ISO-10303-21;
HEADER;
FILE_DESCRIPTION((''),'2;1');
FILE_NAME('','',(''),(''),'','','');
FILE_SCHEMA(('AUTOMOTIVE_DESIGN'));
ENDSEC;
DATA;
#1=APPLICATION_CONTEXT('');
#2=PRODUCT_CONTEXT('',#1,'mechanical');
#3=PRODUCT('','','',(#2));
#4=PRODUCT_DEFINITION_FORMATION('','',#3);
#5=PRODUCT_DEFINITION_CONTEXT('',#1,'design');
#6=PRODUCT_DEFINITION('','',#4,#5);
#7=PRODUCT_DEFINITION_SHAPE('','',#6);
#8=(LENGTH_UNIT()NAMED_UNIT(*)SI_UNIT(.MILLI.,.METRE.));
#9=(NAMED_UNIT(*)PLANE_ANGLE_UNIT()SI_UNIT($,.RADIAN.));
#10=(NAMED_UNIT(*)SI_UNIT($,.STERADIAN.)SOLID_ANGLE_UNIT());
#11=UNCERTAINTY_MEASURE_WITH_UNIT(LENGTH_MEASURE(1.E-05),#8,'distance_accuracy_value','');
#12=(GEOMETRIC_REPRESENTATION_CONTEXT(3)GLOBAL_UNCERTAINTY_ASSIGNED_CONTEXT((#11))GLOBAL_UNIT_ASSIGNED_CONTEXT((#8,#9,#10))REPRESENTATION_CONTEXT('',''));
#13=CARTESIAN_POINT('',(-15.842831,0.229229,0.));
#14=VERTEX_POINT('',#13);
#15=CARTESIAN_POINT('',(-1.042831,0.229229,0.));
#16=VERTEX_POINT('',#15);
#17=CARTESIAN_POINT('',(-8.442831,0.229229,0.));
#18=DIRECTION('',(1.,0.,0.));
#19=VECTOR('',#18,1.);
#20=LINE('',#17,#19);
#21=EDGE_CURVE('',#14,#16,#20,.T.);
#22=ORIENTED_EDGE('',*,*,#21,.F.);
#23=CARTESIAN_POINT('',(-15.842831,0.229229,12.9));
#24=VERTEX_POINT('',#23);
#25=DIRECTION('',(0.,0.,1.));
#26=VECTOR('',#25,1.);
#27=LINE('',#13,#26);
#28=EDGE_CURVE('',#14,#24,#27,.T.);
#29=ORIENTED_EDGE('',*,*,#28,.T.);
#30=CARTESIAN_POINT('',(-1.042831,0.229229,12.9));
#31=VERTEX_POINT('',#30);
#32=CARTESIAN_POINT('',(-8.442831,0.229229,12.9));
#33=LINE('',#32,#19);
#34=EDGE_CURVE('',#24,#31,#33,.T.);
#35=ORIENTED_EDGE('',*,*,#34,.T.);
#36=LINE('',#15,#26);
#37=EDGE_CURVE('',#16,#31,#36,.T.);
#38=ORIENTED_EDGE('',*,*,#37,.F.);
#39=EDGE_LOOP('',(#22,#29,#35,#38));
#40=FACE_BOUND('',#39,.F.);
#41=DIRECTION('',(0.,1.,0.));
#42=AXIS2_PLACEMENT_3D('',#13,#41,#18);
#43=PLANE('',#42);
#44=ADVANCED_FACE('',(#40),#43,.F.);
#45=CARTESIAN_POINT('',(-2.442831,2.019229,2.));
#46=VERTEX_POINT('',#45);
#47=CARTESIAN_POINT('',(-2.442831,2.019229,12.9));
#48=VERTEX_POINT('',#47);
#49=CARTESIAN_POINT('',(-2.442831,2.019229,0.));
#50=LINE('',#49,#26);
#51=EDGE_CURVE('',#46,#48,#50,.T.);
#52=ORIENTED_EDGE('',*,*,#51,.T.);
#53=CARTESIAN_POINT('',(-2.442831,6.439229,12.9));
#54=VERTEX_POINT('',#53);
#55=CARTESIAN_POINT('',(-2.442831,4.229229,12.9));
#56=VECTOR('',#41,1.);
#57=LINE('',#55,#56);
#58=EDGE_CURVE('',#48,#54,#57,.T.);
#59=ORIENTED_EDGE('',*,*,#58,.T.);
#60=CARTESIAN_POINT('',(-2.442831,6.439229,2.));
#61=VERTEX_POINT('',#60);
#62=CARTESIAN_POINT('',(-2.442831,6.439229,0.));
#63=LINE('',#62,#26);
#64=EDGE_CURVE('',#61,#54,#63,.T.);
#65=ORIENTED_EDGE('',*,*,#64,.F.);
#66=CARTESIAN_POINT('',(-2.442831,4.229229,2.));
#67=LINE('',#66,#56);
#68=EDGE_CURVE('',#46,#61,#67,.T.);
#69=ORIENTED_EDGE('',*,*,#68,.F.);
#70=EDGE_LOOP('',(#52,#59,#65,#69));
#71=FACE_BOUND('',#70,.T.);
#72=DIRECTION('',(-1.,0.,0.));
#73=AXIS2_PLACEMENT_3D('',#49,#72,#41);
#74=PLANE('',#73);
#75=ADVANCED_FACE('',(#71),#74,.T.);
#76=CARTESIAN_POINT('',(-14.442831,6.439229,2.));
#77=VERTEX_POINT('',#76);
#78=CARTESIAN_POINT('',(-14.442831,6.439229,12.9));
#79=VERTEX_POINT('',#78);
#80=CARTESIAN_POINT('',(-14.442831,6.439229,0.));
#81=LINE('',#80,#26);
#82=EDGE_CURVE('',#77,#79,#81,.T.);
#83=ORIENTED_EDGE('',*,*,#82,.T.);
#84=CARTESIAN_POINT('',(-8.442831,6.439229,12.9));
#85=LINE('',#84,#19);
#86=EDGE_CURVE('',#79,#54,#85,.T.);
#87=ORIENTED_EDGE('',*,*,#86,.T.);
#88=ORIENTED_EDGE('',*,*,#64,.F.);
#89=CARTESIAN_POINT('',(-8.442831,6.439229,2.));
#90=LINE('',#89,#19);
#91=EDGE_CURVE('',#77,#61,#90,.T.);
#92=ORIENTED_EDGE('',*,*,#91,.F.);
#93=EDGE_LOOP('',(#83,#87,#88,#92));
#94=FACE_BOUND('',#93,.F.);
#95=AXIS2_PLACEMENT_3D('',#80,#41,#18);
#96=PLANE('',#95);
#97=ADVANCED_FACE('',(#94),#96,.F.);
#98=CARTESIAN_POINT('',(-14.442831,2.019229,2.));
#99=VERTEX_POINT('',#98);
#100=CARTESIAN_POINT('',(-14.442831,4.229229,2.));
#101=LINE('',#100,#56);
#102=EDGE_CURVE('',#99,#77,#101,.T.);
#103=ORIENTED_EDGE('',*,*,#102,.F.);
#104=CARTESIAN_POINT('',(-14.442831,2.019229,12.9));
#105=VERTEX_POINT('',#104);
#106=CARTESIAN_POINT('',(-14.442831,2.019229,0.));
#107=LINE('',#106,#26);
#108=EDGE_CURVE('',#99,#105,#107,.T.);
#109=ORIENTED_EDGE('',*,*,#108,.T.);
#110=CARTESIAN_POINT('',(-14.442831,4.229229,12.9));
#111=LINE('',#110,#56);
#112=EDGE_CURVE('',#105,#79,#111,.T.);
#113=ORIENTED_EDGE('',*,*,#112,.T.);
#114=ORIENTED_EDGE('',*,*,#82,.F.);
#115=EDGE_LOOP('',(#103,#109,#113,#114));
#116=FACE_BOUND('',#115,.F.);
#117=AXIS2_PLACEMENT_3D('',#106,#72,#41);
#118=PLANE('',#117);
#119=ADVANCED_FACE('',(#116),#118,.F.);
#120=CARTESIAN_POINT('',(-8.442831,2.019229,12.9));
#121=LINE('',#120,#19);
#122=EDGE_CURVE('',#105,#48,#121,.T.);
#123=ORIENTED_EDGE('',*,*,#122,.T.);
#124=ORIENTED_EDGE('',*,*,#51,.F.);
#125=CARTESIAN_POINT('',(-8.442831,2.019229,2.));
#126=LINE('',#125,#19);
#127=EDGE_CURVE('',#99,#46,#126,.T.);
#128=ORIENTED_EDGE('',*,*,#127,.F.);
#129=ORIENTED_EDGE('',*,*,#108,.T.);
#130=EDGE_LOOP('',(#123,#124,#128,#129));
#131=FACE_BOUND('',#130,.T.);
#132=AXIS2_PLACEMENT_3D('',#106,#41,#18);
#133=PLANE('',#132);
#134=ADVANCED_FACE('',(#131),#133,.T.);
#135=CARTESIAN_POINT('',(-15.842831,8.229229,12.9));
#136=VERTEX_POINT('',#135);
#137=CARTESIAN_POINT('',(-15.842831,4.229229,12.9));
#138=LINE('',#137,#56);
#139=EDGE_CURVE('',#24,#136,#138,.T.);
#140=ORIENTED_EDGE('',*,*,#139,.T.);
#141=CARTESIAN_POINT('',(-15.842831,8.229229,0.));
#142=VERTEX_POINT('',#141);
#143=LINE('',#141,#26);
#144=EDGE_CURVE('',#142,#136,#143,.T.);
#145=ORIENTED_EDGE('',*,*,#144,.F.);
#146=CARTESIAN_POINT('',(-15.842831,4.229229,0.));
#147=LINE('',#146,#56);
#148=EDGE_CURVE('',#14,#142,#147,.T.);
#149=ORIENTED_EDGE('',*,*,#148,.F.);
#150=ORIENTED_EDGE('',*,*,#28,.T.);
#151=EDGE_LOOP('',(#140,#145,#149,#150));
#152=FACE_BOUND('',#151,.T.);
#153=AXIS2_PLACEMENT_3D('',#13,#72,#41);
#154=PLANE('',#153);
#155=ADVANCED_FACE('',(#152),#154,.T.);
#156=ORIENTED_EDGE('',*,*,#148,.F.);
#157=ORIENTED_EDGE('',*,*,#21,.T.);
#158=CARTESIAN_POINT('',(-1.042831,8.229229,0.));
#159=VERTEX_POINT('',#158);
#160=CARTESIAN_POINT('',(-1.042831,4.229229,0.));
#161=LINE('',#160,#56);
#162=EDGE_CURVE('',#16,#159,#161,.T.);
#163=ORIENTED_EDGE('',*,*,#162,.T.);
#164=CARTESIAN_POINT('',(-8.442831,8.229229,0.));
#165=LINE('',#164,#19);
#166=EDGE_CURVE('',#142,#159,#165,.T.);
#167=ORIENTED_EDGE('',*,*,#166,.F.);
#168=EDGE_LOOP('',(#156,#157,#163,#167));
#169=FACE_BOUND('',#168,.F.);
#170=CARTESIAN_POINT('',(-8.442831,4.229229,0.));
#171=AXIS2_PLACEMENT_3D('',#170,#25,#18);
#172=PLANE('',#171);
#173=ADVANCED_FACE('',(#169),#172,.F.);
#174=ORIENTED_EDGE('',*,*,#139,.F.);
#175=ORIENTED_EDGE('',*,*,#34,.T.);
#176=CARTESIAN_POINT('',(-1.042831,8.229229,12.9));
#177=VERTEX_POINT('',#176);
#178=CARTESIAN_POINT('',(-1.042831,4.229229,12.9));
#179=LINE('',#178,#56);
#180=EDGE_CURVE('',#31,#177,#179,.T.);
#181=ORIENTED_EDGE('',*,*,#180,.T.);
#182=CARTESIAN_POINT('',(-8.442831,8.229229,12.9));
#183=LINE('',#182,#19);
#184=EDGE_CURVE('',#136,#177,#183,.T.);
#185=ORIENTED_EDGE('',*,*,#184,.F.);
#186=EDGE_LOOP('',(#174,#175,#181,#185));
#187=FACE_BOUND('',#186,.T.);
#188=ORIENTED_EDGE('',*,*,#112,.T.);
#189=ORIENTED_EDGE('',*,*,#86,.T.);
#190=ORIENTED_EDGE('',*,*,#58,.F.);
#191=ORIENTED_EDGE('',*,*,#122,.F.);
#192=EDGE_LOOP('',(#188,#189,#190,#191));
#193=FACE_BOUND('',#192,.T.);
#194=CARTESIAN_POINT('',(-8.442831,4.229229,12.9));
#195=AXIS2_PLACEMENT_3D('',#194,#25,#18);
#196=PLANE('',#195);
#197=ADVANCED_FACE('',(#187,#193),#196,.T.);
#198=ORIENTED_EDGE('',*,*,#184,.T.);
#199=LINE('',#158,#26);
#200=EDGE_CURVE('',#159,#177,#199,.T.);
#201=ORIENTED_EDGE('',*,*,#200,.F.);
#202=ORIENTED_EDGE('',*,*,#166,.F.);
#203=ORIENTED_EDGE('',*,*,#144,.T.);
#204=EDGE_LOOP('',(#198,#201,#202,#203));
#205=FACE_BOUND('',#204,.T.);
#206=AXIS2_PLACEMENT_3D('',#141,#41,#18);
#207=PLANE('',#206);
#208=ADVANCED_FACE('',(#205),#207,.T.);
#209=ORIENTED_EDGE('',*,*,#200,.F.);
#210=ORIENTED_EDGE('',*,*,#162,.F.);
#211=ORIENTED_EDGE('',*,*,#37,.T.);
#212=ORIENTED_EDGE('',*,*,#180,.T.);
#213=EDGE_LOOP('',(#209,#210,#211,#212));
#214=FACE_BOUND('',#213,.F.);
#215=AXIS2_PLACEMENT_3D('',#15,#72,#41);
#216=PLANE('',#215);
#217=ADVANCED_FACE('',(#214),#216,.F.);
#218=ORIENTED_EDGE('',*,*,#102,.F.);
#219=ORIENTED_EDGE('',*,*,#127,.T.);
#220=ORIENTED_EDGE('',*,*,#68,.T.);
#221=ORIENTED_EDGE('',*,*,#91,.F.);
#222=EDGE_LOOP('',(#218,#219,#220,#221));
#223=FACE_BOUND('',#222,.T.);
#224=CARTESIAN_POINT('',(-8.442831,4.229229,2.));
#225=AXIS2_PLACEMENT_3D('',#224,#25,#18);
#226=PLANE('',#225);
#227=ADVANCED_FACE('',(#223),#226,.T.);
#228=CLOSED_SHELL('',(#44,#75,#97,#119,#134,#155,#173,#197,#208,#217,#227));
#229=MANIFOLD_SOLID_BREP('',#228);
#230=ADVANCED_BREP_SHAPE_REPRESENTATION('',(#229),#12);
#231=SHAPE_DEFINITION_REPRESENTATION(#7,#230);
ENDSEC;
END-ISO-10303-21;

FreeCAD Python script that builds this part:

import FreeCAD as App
import Part
import Sketcher
from FreeCAD import Vector

doc = App.newDocument("Part")
params = doc.addObject("Spreadsheet::Sheet", "Params")
for row, (alias, value) in enumerate([
    ("sketch1_width", "12 mm"),
    ("sketch1_height", "4.42 mm"),
    ("pad1_length", "2 mm"),
    ("sketch2_width", "12 mm"),
    ("sketch2_height", "8 mm"),
    ("sketch2_width2", "14.8 mm"),
    ("sketch2_height2", "4.42 mm"),
    ("pad2_length", "12.9 mm"),
], start=1):
    params.set(f"A{row}", alias)
    params.set(f"B{row}", "=" + value)
    params.setAlias(f"B{row}", alias)

body = doc.addObject("PartDesign::Body", "Body")

# Sketch on XY plane
sketch1 = body.newObject("Sketcher::SketchObject", "Sketch")
sketch1.AttachmentSupport = (doc.getObject("XY_Plane"), [""])
sketch1.MapMode = "FlatFace"
sketch1.addGeometry(Part.LineSegment(Vector(-14.4, 6.4, 0), Vector(-14.4, 2, 0)), False)
sketch1.addGeometry(Part.LineSegment(Vector(-14.4, 2, 0), Vector(-2.4, 2, 0)), False)
sketch1.addGeometry(Part.LineSegment(Vector(-2.4, 2, 0), Vector(-2.4, 6.4, 0)), False)
sketch1.addGeometry(Part.LineSegment(Vector(-2.4, 6.4, 0), Vector(-14.4, 6.4, 0)), False)
sketch1.addConstraint(Sketcher.Constraint("Coincident", 0, 2, 1, 1))
sketch1.addConstraint(Sketcher.Constraint("Coincident", 1, 2, 2, 1))
sketch1.addConstraint(Sketcher.Constraint("Coincident", 2, 2, 3, 1))
sketch1.addConstraint(Sketcher.Constraint("Coincident", 3, 2, 0, 1))
sketch1.addConstraint(Sketcher.Constraint("Vertical", 0))
sketch1.addConstraint(Sketcher.Constraint("Horizontal", 1))
sketch1.addConstraint(Sketcher.Constraint("Vertical", 2))
sketch1.addConstraint(Sketcher.Constraint("Horizontal", 3))
sketch1.addConstraint(Sketcher.Constraint("DistanceX", 1, 1, 1, 2, 12.0))
sketch1.addConstraint(Sketcher.Constraint("DistanceY", 0, 2, 0, 1, 4.42))
sketch1.addConstraint(Sketcher.Constraint("DistanceX", 0, 2, -1, 1, 14.442831))
sketch1.addConstraint(Sketcher.Constraint("DistanceY", -1, 1, 0, 2, 2.019229))
sketch1.setExpression("Constraints[8]", "Params.sketch1_width")
sketch1.setExpression("Constraints[9]", "Params.sketch1_height")
pad1 = body.newObject("PartDesign::Pad", "Pad")
pad1.Profile = sketch1
pad1.setExpression("Length", "Params.pad1_length")

# Sketch on XY plane
sketch2 = body.newObject("Sketcher::SketchObject", "Sketch001")
sketch2.AttachmentSupport = (doc.getObject("XY_Plane"), [""])
sketch2.MapMode = "FlatFace"
sketch2.addGeometry(Part.LineSegment(Vector(-15.8, 8.2, 0), Vector(-15.8, 0.2, 0)), False)
sketch2.addGeometry(Part.LineSegment(Vector(-15.8, 0.2, 0), Vector(-1, 0.2, 0)), False)
sketch2.addGeometry(Part.LineSegment(Vector(-1, 0.2, 0), Vector(-1, 8.2, 0)), False)
sketch2.addGeometry(Part.LineSegment(Vector(-1, 8.2, 0), Vector(-15.8, 8.2, 0)), False)
sketch2.addGeometry(Part.LineSegment(Vector(-2.4, 2, 0), Vector(-14.4, 2, 0)), False)
sketch2.addGeometry(Part.LineSegment(Vector(-14.4, 2, 0), Vector(-14.4, 6.4, 0)), False)
sketch2.addGeometry(Part.LineSegment(Vector(-14.4, 6.4, 0), Vector(-2.4, 6.4, 0)), False)
sketch2.addGeometry(Part.LineSegment(Vector(-2.4, 6.4, 0), Vector(-2.4, 2, 0)), False)
sketch2.addConstraint(Sketcher.Constraint("Coincident", 0, 2, 1, 1))
sketch2.addConstraint(Sketcher.Constraint("Coincident", 1, 2, 2, 1))
sketch2.addConstraint(Sketcher.Constraint("Coincident", 2, 2, 3, 1))
sketch2.addConstraint(Sketcher.Constraint("Coincident", 3, 2, 0, 1))
sketch2.addConstraint(Sketcher.Constraint("Coincident", 4, 2, 5, 1))
sketch2.addConstraint(Sketcher.Constraint("Coincident", 5, 2, 6, 1))
sketch2.addConstraint(Sketcher.Constraint("Coincident", 6, 2, 7, 1))
sketch2.addConstraint(Sketcher.Constraint("Coincident", 7, 2, 4, 1))
sketch2.addConstraint(Sketcher.Constraint("Vertical", 0))
sketch2.addConstraint(Sketcher.Constraint("Horizontal", 1))
sketch2.addConstraint(Sketcher.Constraint("Vertical", 2))
sketch2.addConstraint(Sketcher.Constraint("Horizontal", 3))
sketch2.addConstraint(Sketcher.Constraint("Horizontal", 4))
sketch2.addConstraint(Sketcher.Constraint("Vertical", 5))
sketch2.addConstraint(Sketcher.Constraint("Horizontal", 6))
sketch2.addConstraint(Sketcher.Constraint("Vertical", 7))
sketch2.addConstraint(Sketcher.Constraint("DistanceX", 4, 2, 4, 1, 12.0))
sketch2.addConstraint(Sketcher.Constraint("DistanceY", 0, 2, 0, 1, 8.0))
sketch2.addConstraint(Sketcher.Constraint("DistanceX", 1, 1, 1, 2, 14.8))
sketch2.addConstraint(Sketcher.Constraint("DistanceY", 5, 1, 5, 2, 4.42))
sketch2.addConstraint(Sketcher.Constraint("DistanceX", 0, 2, 4, 2, 1.4))
sketch2.addConstraint(Sketcher.Constraint("DistanceY", 0, 2, 4, 2, 1.79))
sketch2.addConstraint(Sketcher.Constraint("DistanceX", 0, 2, -1, 1, 15.842831))
sketch2.addConstraint(Sketcher.Constraint("DistanceY", -1, 1, 0, 2, 0.229229))
sketch2.setExpression("Constraints[16]", "Params.sketch2_width")
sketch2.setExpression("Constraints[17]", "Params.sketch2_height")
sketch2.setExpression("Constraints[18]", "Params.sketch2_width2")
sketch2.setExpression("Constraints[19]", "Params.sketch2_height2")
pad2 = body.newObject("PartDesign::Pad", "Pad001")
pad2.Profile = sketch2
pad2.setExpression("Length", "Params.pad2_length")

doc.recompute()
